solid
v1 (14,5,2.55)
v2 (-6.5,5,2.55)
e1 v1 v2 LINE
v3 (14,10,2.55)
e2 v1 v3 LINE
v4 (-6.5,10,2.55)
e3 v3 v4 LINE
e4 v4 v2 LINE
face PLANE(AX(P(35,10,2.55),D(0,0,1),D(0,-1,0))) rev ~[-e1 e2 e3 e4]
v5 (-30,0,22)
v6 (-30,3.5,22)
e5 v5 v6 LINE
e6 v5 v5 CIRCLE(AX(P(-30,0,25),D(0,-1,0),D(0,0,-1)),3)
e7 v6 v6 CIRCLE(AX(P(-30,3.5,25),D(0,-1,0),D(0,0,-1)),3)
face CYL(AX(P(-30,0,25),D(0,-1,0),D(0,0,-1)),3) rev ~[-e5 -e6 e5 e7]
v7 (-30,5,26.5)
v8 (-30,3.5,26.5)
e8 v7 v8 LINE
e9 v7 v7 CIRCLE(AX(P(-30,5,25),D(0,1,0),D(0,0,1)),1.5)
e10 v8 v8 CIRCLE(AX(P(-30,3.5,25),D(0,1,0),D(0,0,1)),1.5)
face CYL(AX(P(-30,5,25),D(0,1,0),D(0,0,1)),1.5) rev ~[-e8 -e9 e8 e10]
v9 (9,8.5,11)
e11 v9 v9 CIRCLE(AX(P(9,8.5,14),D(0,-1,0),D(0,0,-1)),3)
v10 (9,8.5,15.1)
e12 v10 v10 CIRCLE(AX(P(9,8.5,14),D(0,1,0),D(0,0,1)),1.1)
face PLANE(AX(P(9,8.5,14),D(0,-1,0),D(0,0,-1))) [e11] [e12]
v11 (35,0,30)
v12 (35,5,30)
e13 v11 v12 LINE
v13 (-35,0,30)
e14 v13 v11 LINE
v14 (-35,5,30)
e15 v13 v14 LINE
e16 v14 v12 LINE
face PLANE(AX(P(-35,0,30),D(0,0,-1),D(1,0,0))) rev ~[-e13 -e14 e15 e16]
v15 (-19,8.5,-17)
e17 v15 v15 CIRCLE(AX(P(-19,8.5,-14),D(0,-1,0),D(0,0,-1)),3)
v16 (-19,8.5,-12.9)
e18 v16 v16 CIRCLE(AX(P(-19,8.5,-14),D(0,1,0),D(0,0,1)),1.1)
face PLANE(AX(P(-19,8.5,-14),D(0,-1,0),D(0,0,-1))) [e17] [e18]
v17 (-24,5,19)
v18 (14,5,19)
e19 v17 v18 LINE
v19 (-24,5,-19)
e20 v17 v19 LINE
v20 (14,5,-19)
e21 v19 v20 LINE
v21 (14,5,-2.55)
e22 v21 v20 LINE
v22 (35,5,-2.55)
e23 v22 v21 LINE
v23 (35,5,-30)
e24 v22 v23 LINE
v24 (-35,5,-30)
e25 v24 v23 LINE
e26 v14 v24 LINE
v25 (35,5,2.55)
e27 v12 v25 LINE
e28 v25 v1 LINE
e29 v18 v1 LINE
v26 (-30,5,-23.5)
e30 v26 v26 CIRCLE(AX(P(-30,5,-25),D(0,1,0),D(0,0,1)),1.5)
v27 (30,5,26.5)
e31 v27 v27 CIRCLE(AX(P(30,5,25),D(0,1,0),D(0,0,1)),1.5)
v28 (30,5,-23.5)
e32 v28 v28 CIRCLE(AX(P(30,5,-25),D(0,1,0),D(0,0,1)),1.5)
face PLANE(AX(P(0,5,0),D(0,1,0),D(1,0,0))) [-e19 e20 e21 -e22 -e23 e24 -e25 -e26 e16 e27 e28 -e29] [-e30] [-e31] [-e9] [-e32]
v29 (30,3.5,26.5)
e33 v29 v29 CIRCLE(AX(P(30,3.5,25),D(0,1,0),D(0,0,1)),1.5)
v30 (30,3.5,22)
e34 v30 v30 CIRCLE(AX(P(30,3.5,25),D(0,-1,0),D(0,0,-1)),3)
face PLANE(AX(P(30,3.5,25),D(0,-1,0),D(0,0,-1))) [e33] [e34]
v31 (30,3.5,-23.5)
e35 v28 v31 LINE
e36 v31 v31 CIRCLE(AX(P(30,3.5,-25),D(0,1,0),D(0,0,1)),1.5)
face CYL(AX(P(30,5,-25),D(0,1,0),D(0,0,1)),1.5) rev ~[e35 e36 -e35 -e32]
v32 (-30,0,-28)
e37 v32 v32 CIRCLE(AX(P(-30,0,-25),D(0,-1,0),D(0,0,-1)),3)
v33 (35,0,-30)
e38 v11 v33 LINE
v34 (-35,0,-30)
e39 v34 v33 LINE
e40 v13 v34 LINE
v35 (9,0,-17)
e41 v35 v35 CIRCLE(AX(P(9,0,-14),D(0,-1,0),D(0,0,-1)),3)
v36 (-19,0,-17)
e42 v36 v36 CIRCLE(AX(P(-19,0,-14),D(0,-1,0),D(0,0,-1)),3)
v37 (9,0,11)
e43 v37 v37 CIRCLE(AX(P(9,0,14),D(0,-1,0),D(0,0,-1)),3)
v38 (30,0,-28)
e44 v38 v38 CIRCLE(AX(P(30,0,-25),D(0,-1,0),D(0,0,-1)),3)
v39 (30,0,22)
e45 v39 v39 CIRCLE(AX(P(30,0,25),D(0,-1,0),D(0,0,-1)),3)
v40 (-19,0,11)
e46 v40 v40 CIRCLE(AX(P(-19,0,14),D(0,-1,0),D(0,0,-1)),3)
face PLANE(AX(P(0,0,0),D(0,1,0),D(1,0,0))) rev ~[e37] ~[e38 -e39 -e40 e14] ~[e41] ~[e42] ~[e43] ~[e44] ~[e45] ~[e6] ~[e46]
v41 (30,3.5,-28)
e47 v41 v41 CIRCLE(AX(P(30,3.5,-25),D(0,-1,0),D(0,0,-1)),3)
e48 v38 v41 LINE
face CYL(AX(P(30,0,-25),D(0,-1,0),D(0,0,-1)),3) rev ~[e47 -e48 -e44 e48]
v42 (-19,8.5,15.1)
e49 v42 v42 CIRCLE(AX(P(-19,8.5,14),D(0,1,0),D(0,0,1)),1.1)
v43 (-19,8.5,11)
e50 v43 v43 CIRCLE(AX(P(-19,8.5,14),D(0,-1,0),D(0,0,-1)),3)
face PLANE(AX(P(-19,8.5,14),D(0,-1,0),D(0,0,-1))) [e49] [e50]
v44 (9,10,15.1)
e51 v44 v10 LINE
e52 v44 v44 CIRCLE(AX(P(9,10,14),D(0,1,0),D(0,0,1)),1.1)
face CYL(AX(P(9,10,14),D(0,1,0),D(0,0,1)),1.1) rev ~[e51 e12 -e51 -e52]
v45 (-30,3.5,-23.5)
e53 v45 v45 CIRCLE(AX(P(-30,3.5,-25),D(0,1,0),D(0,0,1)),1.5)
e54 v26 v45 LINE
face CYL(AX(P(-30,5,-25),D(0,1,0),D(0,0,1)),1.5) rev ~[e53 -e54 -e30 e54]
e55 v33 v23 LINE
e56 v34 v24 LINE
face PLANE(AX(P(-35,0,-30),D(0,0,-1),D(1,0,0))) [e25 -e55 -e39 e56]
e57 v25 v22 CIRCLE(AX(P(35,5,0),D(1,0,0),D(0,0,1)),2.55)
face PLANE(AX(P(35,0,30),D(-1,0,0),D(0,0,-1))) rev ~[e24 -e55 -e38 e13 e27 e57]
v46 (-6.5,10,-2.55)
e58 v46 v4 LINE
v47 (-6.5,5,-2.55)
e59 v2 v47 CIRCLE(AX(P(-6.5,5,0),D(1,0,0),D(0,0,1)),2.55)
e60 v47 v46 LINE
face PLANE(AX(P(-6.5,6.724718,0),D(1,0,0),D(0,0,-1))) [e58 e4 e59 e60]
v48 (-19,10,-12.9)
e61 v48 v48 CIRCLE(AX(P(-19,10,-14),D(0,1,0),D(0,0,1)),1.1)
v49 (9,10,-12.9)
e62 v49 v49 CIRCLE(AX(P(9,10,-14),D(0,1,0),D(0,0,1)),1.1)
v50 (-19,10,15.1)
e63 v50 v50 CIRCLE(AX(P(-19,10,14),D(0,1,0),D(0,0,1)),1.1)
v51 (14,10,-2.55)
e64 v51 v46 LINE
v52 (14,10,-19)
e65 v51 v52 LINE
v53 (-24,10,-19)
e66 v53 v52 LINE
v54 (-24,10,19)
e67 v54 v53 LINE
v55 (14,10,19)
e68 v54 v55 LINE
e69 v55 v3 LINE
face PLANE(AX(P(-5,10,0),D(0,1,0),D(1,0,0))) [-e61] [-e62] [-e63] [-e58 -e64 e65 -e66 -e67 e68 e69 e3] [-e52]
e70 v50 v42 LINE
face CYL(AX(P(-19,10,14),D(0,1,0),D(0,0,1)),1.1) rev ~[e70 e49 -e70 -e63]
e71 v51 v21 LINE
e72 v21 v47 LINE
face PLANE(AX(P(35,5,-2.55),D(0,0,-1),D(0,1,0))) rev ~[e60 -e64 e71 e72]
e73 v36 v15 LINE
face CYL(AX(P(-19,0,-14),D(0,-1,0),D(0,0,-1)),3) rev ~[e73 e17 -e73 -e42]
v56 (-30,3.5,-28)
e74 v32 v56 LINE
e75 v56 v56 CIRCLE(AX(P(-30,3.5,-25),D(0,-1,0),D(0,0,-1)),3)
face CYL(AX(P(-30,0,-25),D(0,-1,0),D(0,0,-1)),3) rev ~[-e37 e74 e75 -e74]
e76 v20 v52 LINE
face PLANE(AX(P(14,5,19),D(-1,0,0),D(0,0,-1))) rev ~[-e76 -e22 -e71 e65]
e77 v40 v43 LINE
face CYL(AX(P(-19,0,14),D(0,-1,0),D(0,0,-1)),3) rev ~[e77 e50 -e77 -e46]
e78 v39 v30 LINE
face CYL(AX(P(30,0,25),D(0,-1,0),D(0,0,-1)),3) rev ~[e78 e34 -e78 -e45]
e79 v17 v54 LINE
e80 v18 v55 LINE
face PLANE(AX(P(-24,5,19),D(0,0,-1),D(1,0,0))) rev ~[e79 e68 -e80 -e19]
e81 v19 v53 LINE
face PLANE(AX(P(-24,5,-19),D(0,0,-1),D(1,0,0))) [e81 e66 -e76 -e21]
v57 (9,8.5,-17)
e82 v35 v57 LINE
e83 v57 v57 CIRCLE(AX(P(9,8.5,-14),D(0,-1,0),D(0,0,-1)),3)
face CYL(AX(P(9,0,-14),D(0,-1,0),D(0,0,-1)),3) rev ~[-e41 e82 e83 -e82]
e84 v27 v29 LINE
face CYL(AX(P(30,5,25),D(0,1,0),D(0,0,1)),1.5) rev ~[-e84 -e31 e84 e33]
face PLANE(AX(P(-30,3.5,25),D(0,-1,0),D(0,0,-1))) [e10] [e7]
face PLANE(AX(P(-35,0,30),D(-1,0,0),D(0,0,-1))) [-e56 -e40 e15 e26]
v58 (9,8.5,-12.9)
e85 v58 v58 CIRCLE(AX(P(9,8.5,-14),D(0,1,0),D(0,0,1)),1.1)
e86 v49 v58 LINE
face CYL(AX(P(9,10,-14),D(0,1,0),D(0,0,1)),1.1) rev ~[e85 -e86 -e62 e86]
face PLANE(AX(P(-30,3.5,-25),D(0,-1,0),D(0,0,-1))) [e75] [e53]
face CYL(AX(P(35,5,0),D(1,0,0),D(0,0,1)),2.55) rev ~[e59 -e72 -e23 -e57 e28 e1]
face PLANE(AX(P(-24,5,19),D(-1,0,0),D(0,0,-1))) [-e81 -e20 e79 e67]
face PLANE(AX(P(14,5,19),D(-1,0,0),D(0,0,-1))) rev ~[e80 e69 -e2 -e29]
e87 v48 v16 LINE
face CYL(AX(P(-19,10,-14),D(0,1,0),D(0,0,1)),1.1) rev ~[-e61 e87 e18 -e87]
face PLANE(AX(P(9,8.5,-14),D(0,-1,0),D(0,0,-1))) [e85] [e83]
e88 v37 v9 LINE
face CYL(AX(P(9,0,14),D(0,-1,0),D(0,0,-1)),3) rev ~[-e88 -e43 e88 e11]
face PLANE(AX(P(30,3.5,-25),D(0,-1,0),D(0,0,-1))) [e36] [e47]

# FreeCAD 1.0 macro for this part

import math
import FreeCAD as App
import Part
import Sketcher

V = App.Vector

doc = App.newDocument("Part")
body = doc.addObject("PartDesign::Body", "Body")

# Sketch on XZ plane
sketch1 = body.newObject("Sketcher::SketchObject", "Sketch")
sketch1.AttachmentSupport = (doc.getObject("XZ_Plane"), [""])
sketch1.MapMode = "FlatFace"
sketch1.addGeometry(Part.LineSegment(V(-35, -30, 0), V(-35, 30, 0)), False)
sketch1.addGeometry(Part.LineSegment(V(-35, 30, 0), V(35, 30, 0)), False)
sketch1.addGeometry(Part.LineSegment(V(35, 30, 0), V(35, -30, 0)), False)
sketch1.addGeometry(Part.LineSegment(V(35, -30, 0), V(-35, -30, 0)), False)
sketch1.addConstraint(Sketcher.Constraint("Coincident", 0, 2, 1, 1))
sketch1.addConstraint(Sketcher.Constraint("Coincident", 1, 2, 2, 1))
sketch1.addConstraint(Sketcher.Constraint("Coincident", 2, 2, 3, 1))
sketch1.addConstraint(Sketcher.Constraint("Coincident", 3, 2, 0, 1))
sketch1.addConstraint(Sketcher.Constraint("Vertical", 0))
sketch1.addConstraint(Sketcher.Constraint("Horizontal", 1))
sketch1.addConstraint(Sketcher.Constraint("Vertical", 2))
sketch1.addConstraint(Sketcher.Constraint("Horizontal", 3))
sketch1.addConstraint(Sketcher.Constraint("Symmetric", 0, 2, 2, 2, -1, 1))
sketch1.addConstraint(Sketcher.Constraint("DistanceX", 1, 1, 1, 2, 70.0))
sketch1.addConstraint(Sketcher.Constraint("DistanceY", 0, 1, 0, 2, 60.0))
pad1 = body.newObject("PartDesign::Pad", "Pad")
pad1.Profile = sketch1
pad1.Length = 5
pad1.Reversed = True

# Sketch on XZ plane
sketch2 = body.newObject("Sketcher::SketchObject", "Sketch001")
sketch2.AttachmentSupport = (doc.getObject("XZ_Plane"), [""])
sketch2.MapMode = "FlatFace"
sketch2.AttachmentOffset = App.Placement(V(0, 0, -5), App.Rotation())
sketch2.addGeometry(Part.LineSegment(V(-24, -19, 0), V(-24, 19, 0)), False)
sketch2.addGeometry(Part.LineSegment(V(-24, 19, 0), V(14, 19, 0)), False)
sketch2.addGeometry(Part.LineSegment(V(14, 19, 0), V(14, -19, 0)), False)
sketch2.addGeometry(Part.LineSegment(V(14, -19, 0), V(-24, -19, 0)), False)
sketch2.addConstraint(Sketcher.Constraint("Coincident", 0, 2, 1, 1))
sketch2.addConstraint(Sketcher.Constraint("Coincident", 1, 2, 2, 1))
sketch2.addConstraint(Sketcher.Constraint("Coincident", 2, 2, 3, 1))
sketch2.addConstraint(Sketcher.Constraint("Coincident", 3, 2, 0, 1))
sketch2.addConstraint(Sketcher.Constraint("Vertical", 0))
sketch2.addConstraint(Sketcher.Constraint("Horizontal", 1))
sketch2.addConstraint(Sketcher.Constraint("Vertical", 2))
sketch2.addConstraint(Sketcher.Constraint("Horizontal", 3))
sketch2.addConstraint(Sketcher.Constraint("Equal", 3, 0))
sketch2.addConstraint(Sketcher.Constraint("DistanceX", 1, 1, 1, 2, 38.0))
sketch2.addConstraint(Sketcher.Constraint("DistanceX", 0, 2, -1, 1, 24.0))
sketch2.addConstraint(Sketcher.Constraint("DistanceY", -1, 1, 0, 2, 19.0))
pad2 = body.newObject("PartDesign::Pad", "Pad001")
pad2.Profile = sketch2
pad2.Length = 5
pad2.Reversed = True

# Sketch on XZ plane
sketch3 = body.newObject("Sketcher::SketchObject", "Sketch002")
sketch3.AttachmentSupport = (doc.getObject("XZ_Plane"), [""])
sketch3.MapMode = "FlatFace"
sketch3.AttachmentOffset = App.Placement(V(0, 0, -10), App.Rotation())
sketch3.addGeometry(Part.Circle(V(-19, -14, 0), V(0, 0, 1), 1.1), False)
sketch3.addConstraint(Sketcher.Constraint("Diameter", 0, 2.2))
sketch3.addConstraint(Sketcher.Constraint("DistanceX", 0, 3, -1, 1, 19.0))
sketch3.addConstraint(Sketcher.Constraint("DistanceY", 0, 3, -1, 1, 14.0))
pocket1 = body.newObject("PartDesign::Pocket", "Pocket")
pocket1.Profile = sketch3
pocket1.Type = "UpToFirst"
pocket1.Reversed = True

# Sketch on XZ plane
sketch4 = body.newObject("Sketcher::SketchObject", "Sketch003")
sketch4.AttachmentSupport = (doc.getObject("XZ_Plane"), [""])
sketch4.MapMode = "FlatFace"
sketch4.AttachmentOffset = App.Placement(V(0, 0, -10), App.Rotation())
sketch4.addGeometry(Part.Circle(V(9, -14, 0), V(0, 0, 1), 1.1), False)
sketch4.addConstraint(Sketcher.Constraint("Diameter", 0, 2.2))
sketch4.addConstraint(Sketcher.Constraint("DistanceX", -1, 1, 0, 3, 9.0))
sketch4.addConstraint(Sketcher.Constraint("DistanceY", 0, 3, -1, 1, 14.0))
pocket2 = body.newObject("PartDesign::Pocket", "Pocket001")
pocket2.Profile = sketch4
pocket2.Type = "UpToFirst"
pocket2.Reversed = True

# Sketch on XZ plane
sketch5 = body.newObject("Sketcher::SketchObject", "Sketch004")
sketch5.AttachmentSupport = (doc.getObject("XZ_Plane"), [""])
sketch5.MapMode = "FlatFace"
sketch5.AttachmentOffset = App.Placement(V(0, 0, -10), App.Rotation())
sketch5.addGeometry(Part.Circle(V(-19, 14, 0), V(0, 0, 1), 1.1), False)
sketch5.addConstraint(Sketcher.Constraint("Diameter", 0, 2.2))
sketch5.addConstraint(Sketcher.Constraint("DistanceX", 0, 3, -1, 1, 19.0))
sketch5.addConstraint(Sketcher.Constraint("DistanceY", -1, 1, 0, 3, 14.0))
pocket3 = body.newObject("PartDesign::Pocket", "Pocket002")
pocket3.Profile = sketch5
pocket3.Type = "UpToFirst"
pocket3.Reversed = True

# Sketch on XZ plane
sketch6 = body.newObject("Sketcher::SketchObject", "Sketch005")
sketch6.AttachmentSupport = (doc.getObject("XZ_Plane"), [""])
sketch6.MapMode = "FlatFace"
sketch6.AttachmentOffset = App.Placement(V(0, 0, -10), App.Rotation())
sketch6.addGeometry(Part.Circle(V(9, 14, 0), V(0, 0, 1), 1.1), False)
sketch6.addConstraint(Sketcher.Constraint("Diameter", 0, 2.2))
sketch6.addConstraint(Sketcher.Constraint("DistanceX", -1, 1, 0, 3, 9.0))
sketch6.addConstraint(Sketcher.Constraint("DistanceY", -1, 1, 0, 3, 14.0))
pocket4 = body.newObject("PartDesign::Pocket", "Pocket003")
pocket4.Profile = sketch6
pocket4.Type = "UpToFirst"
pocket4.Reversed = True

# Sketch on XZ plane
sketch7 = body.newObject("Sketcher::SketchObject", "Sketch006")
sketch7.AttachmentSupport = (doc.getObject("XZ_Plane"), [""])
sketch7.MapMode = "FlatFace"
sketch7.addGeometry(Part.Circle(V(-19, -14, 0), V(0, 0, 1), 3), False)
sketch7.addGeometry(Part.Circle(V(-19, 14, 0), V(0, 0, 1), 3), False)
sketch7.addGeometry(Part.Circle(V(9, 14, 0), V(0, 0, 1), 3), False)
sketch7.addGeometry(Part.Circle(V(9, -14, 0), V(0, 0, 1), 3), False)
sketch7.addConstraint(Sketcher.Constraint("Equal", 0, 1))
sketch7.addConstraint(Sketcher.Constraint("Equal", 1, 2))
sketch7.addConstraint(Sketcher.Constraint("Equal", 2, 3))
sketch7.addConstraint(Sketcher.Constraint("Symmetric", 0, 3, 1, 3, -1))
sketch7.addConstraint(Sketcher.Constraint("Symmetric", 2, 3, 3, 3, -1))
sketch7.addConstraint(Sketcher.Constraint("Horizontal", 1, 3, 2, 3))
sketch7.addConstraint(Sketcher.Constraint("Diameter", 0, 6.0))
sketch7.addConstraint(Sketcher.Constraint("DistanceX", 0, 3, -1, 1, 19.0))
sketch7.addConstraint(Sketcher.Constraint("DistanceY", 0, 3, -1, 1, 14.0))
sketch7.addConstraint(Sketcher.Constraint("DistanceX", -1, 1, 2, 3, 9.0))
pocket5 = body.newObject("PartDesign::Pocket", "Pocket004")
pocket5.Profile = sketch7
pocket5.Length = 8.5

# Sketch on XZ plane
sketch8 = body.newObject("Sketcher::SketchObject", "Sketch007")
sketch8.AttachmentSupport = (doc.getObject("XZ_Plane"), [""])
sketch8.MapMode = "FlatFace"
sketch8.AttachmentOffset = App.Placement(V(0, 0, -5), App.Rotation())
sketch8.addGeometry(Part.Circle(V(-30, -25, 0), V(0, 0, 1), 1.5), False)
sketch8.addConstraint(Sketcher.Constraint("Diameter", 0, 3.0))
sketch8.addConstraint(Sketcher.Constraint("DistanceX", 0, 3, -1, 1, 30.0))
sketch8.addConstraint(Sketcher.Constraint("DistanceY", 0, 3, -1, 1, 25.0))
pocket6 = body.newObject("PartDesign::Pocket", "Pocket005")
pocket6.Profile = sketch8
pocket6.Type = "UpToFirst"
pocket6.Reversed = True

# Sketch on XZ plane
sketch9 = body.newObject("Sketcher::SketchObject", "Sketch008")
sketch9.AttachmentSupport = (doc.getObject("XZ_Plane"), [""])
sketch9.MapMode = "FlatFace"
sketch9.AttachmentOffset = App.Placement(V(0, 0, -5), App.Rotation())
sketch9.addGeometry(Part.Circle(V(30, -25, 0), V(0, 0, 1), 1.5), False)
sketch9.addConstraint(Sketcher.Constraint("Diameter", 0, 3.0))
sketch9.addConstraint(Sketcher.Constraint("DistanceX", -1, 1, 0, 3, 30.0))
sketch9.addConstraint(Sketcher.Constraint("DistanceY", 0, 3, -1, 1, 25.0))
pocket7 = body.newObject("PartDesign::Pocket", "Pocket006")
pocket7.Profile = sketch9
pocket7.Type = "UpToFirst"
pocket7.Reversed = True

# Sketch on XZ plane
sketch10 = body.newObject("Sketcher::SketchObject", "Sketch009")
sketch10.AttachmentSupport = (doc.getObject("XZ_Plane"), [""])
sketch10.MapMode = "FlatFace"
sketch10.AttachmentOffset = App.Placement(V(0, 0, -5), App.Rotation())
sketch10.addGeometry(Part.Circle(V(30, 25, 0), V(0, 0, 1), 1.5), False)
sketch10.addConstraint(Sketcher.Constraint("Diameter", 0, 3.0))
sketch10.addConstraint(Sketcher.Constraint("DistanceX", -1, 1, 0, 3, 30.0))
sketch10.addConstraint(Sketcher.Constraint("DistanceY", -1, 1, 0, 3, 25.0))
pocket8 = body.newObject("PartDesign::Pocket", "Pocket007")
pocket8.Profile = sketch10
pocket8.Type = "UpToFirst"
pocket8.Reversed = True

# Sketch on XZ plane
sketch11 = body.newObject("Sketcher::SketchObject", "Sketch010")
sketch11.AttachmentSupport = (doc.getObject("XZ_Plane"), [""])
sketch11.MapMode = "FlatFace"
sketch11.AttachmentOffset = App.Placement(V(0, 0, -5), App.Rotation())
sketch11.addGeometry(Part.Circle(V(-30, 25, 0), V(0, 0, 1), 1.5), False)
sketch11.addConstraint(Sketcher.Constraint("Diameter", 0, 3.0))
sketch11.addConstraint(Sketcher.Constraint("DistanceX", 0, 3, -1, 1, 30.0))
sketch11.addConstraint(Sketcher.Constraint("DistanceY", -1, 1, 0, 3, 25.0))
pocket9 = body.newObject("PartDesign::Pocket", "Pocket008")
pocket9.Profile = sketch11
pocket9.Type = "UpToFirst"
pocket9.Reversed = True

# Sketch on XZ plane
sketch12 = body.newObject("Sketcher::SketchObject", "Sketch011")
sketch12.AttachmentSupport = (doc.getObject("XZ_Plane"), [""])
sketch12.MapMode = "FlatFace"
sketch12.addGeometry(Part.Circle(V(-30, -25, 0), V(0, 0, 1), 3), False)
sketch12.addGeometry(Part.Circle(V(30, -25, 0), V(0, 0, 1), 3), False)
sketch12.addGeometry(Part.Circle(V(30, 25, 0), V(0, 0, 1), 3), False)
sketch12.addGeometry(Part.Circle(V(-30, 25, 0), V(0, 0, 1), 3), False)
sketch12.addConstraint(Sketcher.Constraint("Equal", 0, 1))
sketch12.addConstraint(Sketcher.Constraint("Equal", 1, 2))
sketch12.addConstraint(Sketcher.Constraint("Equal", 2, 3))
sketch12.addConstraint(Sketcher.Constraint("Symmetric", 0, 3, 2, 3, -1, 1))
sketch12.addConstraint(Sketcher.Constraint("Symmetric", 1, 3, 3, 3, -1, 1))
sketch12.addConstraint(Sketcher.Constraint("Symmetric", 0, 3, 1, 3, -2))
sketch12.addConstraint(Sketcher.Constraint("Diameter", 0, 6.0))
sketch12.addConstraint(Sketcher.Constraint("DistanceX", 0, 3, -1, 1, 30.0))
sketch12.addConstraint(Sketcher.Constraint("DistanceY", 0, 3, -1, 1, 25.0))
pocket10 = body.newObject("PartDesign::Pocket", "Pocket009")
pocket10.Profile = sketch12
pocket10.Length = 3.5

# Sketch on YZ plane
sketch13 = body.newObject("Sketcher::SketchObject", "Sketch012")
sketch13.AttachmentSupport = (doc.getObject("YZ_Plane"), [""])
sketch13.MapMode = "FlatFace"
sketch13.AttachmentOffset = App.Placement(V(0, 0, 35), App.Rotation())
sketch13.addGeometry(Part.LineSegment(V(5, -2.5, 0), V(10, -2.5, 0)), False)
sketch13.addGeometry(Part.LineSegment(V(10, -2.5, 0), V(10, 2.5, 0)), False)
sketch13.addGeometry(Part.LineSegment(V(10, 2.5, 0), V(5, 2.5, 0)), False)
sketch13.addGeometry(Part.ArcOfCircle(Part.Circle(V(5, 0, 0), V(0, 0, 1), 2.5), math.radians(90), math.radians(270)), False)
sketch13.addConstraint(Sketcher.Constraint("Coincident", 0, 2, 1, 1))
sketch13.addConstraint(Sketcher.Constraint("Coincident", 1, 2, 2, 1))
sketch13.addConstraint(Sketcher.Constraint("Tangent", 2, 2, 3, 1))
sketch13.addConstraint(Sketcher.Constraint("Tangent", 3, 2, 0, 1))
sketch13.addConstraint(Sketcher.Constraint("Horizontal", 0))
sketch13.addConstraint(Sketcher.Constraint("Vertical", 1))
sketch13.addConstraint(Sketcher.Constraint("Horizontal", 2))
sketch13.addConstraint(Sketcher.Constraint("PointOnObject", 3, 3, -1))
sketch13.addConstraint(Sketcher.Constraint("DistanceX", 0, 1, 0, 2, 5.0))
sketch13.addConstraint(Sketcher.Constraint("Radius", 3, 2.55))
sketch13.addConstraint(Sketcher.Constraint("DistanceX", -1, 1, 3, 3, 5.0))
pocket11 = body.newObject("PartDesign::Pocket", "Pocket010")
pocket11.Profile = sketch13
pocket11.Length = 41.5

doc.recompute()
